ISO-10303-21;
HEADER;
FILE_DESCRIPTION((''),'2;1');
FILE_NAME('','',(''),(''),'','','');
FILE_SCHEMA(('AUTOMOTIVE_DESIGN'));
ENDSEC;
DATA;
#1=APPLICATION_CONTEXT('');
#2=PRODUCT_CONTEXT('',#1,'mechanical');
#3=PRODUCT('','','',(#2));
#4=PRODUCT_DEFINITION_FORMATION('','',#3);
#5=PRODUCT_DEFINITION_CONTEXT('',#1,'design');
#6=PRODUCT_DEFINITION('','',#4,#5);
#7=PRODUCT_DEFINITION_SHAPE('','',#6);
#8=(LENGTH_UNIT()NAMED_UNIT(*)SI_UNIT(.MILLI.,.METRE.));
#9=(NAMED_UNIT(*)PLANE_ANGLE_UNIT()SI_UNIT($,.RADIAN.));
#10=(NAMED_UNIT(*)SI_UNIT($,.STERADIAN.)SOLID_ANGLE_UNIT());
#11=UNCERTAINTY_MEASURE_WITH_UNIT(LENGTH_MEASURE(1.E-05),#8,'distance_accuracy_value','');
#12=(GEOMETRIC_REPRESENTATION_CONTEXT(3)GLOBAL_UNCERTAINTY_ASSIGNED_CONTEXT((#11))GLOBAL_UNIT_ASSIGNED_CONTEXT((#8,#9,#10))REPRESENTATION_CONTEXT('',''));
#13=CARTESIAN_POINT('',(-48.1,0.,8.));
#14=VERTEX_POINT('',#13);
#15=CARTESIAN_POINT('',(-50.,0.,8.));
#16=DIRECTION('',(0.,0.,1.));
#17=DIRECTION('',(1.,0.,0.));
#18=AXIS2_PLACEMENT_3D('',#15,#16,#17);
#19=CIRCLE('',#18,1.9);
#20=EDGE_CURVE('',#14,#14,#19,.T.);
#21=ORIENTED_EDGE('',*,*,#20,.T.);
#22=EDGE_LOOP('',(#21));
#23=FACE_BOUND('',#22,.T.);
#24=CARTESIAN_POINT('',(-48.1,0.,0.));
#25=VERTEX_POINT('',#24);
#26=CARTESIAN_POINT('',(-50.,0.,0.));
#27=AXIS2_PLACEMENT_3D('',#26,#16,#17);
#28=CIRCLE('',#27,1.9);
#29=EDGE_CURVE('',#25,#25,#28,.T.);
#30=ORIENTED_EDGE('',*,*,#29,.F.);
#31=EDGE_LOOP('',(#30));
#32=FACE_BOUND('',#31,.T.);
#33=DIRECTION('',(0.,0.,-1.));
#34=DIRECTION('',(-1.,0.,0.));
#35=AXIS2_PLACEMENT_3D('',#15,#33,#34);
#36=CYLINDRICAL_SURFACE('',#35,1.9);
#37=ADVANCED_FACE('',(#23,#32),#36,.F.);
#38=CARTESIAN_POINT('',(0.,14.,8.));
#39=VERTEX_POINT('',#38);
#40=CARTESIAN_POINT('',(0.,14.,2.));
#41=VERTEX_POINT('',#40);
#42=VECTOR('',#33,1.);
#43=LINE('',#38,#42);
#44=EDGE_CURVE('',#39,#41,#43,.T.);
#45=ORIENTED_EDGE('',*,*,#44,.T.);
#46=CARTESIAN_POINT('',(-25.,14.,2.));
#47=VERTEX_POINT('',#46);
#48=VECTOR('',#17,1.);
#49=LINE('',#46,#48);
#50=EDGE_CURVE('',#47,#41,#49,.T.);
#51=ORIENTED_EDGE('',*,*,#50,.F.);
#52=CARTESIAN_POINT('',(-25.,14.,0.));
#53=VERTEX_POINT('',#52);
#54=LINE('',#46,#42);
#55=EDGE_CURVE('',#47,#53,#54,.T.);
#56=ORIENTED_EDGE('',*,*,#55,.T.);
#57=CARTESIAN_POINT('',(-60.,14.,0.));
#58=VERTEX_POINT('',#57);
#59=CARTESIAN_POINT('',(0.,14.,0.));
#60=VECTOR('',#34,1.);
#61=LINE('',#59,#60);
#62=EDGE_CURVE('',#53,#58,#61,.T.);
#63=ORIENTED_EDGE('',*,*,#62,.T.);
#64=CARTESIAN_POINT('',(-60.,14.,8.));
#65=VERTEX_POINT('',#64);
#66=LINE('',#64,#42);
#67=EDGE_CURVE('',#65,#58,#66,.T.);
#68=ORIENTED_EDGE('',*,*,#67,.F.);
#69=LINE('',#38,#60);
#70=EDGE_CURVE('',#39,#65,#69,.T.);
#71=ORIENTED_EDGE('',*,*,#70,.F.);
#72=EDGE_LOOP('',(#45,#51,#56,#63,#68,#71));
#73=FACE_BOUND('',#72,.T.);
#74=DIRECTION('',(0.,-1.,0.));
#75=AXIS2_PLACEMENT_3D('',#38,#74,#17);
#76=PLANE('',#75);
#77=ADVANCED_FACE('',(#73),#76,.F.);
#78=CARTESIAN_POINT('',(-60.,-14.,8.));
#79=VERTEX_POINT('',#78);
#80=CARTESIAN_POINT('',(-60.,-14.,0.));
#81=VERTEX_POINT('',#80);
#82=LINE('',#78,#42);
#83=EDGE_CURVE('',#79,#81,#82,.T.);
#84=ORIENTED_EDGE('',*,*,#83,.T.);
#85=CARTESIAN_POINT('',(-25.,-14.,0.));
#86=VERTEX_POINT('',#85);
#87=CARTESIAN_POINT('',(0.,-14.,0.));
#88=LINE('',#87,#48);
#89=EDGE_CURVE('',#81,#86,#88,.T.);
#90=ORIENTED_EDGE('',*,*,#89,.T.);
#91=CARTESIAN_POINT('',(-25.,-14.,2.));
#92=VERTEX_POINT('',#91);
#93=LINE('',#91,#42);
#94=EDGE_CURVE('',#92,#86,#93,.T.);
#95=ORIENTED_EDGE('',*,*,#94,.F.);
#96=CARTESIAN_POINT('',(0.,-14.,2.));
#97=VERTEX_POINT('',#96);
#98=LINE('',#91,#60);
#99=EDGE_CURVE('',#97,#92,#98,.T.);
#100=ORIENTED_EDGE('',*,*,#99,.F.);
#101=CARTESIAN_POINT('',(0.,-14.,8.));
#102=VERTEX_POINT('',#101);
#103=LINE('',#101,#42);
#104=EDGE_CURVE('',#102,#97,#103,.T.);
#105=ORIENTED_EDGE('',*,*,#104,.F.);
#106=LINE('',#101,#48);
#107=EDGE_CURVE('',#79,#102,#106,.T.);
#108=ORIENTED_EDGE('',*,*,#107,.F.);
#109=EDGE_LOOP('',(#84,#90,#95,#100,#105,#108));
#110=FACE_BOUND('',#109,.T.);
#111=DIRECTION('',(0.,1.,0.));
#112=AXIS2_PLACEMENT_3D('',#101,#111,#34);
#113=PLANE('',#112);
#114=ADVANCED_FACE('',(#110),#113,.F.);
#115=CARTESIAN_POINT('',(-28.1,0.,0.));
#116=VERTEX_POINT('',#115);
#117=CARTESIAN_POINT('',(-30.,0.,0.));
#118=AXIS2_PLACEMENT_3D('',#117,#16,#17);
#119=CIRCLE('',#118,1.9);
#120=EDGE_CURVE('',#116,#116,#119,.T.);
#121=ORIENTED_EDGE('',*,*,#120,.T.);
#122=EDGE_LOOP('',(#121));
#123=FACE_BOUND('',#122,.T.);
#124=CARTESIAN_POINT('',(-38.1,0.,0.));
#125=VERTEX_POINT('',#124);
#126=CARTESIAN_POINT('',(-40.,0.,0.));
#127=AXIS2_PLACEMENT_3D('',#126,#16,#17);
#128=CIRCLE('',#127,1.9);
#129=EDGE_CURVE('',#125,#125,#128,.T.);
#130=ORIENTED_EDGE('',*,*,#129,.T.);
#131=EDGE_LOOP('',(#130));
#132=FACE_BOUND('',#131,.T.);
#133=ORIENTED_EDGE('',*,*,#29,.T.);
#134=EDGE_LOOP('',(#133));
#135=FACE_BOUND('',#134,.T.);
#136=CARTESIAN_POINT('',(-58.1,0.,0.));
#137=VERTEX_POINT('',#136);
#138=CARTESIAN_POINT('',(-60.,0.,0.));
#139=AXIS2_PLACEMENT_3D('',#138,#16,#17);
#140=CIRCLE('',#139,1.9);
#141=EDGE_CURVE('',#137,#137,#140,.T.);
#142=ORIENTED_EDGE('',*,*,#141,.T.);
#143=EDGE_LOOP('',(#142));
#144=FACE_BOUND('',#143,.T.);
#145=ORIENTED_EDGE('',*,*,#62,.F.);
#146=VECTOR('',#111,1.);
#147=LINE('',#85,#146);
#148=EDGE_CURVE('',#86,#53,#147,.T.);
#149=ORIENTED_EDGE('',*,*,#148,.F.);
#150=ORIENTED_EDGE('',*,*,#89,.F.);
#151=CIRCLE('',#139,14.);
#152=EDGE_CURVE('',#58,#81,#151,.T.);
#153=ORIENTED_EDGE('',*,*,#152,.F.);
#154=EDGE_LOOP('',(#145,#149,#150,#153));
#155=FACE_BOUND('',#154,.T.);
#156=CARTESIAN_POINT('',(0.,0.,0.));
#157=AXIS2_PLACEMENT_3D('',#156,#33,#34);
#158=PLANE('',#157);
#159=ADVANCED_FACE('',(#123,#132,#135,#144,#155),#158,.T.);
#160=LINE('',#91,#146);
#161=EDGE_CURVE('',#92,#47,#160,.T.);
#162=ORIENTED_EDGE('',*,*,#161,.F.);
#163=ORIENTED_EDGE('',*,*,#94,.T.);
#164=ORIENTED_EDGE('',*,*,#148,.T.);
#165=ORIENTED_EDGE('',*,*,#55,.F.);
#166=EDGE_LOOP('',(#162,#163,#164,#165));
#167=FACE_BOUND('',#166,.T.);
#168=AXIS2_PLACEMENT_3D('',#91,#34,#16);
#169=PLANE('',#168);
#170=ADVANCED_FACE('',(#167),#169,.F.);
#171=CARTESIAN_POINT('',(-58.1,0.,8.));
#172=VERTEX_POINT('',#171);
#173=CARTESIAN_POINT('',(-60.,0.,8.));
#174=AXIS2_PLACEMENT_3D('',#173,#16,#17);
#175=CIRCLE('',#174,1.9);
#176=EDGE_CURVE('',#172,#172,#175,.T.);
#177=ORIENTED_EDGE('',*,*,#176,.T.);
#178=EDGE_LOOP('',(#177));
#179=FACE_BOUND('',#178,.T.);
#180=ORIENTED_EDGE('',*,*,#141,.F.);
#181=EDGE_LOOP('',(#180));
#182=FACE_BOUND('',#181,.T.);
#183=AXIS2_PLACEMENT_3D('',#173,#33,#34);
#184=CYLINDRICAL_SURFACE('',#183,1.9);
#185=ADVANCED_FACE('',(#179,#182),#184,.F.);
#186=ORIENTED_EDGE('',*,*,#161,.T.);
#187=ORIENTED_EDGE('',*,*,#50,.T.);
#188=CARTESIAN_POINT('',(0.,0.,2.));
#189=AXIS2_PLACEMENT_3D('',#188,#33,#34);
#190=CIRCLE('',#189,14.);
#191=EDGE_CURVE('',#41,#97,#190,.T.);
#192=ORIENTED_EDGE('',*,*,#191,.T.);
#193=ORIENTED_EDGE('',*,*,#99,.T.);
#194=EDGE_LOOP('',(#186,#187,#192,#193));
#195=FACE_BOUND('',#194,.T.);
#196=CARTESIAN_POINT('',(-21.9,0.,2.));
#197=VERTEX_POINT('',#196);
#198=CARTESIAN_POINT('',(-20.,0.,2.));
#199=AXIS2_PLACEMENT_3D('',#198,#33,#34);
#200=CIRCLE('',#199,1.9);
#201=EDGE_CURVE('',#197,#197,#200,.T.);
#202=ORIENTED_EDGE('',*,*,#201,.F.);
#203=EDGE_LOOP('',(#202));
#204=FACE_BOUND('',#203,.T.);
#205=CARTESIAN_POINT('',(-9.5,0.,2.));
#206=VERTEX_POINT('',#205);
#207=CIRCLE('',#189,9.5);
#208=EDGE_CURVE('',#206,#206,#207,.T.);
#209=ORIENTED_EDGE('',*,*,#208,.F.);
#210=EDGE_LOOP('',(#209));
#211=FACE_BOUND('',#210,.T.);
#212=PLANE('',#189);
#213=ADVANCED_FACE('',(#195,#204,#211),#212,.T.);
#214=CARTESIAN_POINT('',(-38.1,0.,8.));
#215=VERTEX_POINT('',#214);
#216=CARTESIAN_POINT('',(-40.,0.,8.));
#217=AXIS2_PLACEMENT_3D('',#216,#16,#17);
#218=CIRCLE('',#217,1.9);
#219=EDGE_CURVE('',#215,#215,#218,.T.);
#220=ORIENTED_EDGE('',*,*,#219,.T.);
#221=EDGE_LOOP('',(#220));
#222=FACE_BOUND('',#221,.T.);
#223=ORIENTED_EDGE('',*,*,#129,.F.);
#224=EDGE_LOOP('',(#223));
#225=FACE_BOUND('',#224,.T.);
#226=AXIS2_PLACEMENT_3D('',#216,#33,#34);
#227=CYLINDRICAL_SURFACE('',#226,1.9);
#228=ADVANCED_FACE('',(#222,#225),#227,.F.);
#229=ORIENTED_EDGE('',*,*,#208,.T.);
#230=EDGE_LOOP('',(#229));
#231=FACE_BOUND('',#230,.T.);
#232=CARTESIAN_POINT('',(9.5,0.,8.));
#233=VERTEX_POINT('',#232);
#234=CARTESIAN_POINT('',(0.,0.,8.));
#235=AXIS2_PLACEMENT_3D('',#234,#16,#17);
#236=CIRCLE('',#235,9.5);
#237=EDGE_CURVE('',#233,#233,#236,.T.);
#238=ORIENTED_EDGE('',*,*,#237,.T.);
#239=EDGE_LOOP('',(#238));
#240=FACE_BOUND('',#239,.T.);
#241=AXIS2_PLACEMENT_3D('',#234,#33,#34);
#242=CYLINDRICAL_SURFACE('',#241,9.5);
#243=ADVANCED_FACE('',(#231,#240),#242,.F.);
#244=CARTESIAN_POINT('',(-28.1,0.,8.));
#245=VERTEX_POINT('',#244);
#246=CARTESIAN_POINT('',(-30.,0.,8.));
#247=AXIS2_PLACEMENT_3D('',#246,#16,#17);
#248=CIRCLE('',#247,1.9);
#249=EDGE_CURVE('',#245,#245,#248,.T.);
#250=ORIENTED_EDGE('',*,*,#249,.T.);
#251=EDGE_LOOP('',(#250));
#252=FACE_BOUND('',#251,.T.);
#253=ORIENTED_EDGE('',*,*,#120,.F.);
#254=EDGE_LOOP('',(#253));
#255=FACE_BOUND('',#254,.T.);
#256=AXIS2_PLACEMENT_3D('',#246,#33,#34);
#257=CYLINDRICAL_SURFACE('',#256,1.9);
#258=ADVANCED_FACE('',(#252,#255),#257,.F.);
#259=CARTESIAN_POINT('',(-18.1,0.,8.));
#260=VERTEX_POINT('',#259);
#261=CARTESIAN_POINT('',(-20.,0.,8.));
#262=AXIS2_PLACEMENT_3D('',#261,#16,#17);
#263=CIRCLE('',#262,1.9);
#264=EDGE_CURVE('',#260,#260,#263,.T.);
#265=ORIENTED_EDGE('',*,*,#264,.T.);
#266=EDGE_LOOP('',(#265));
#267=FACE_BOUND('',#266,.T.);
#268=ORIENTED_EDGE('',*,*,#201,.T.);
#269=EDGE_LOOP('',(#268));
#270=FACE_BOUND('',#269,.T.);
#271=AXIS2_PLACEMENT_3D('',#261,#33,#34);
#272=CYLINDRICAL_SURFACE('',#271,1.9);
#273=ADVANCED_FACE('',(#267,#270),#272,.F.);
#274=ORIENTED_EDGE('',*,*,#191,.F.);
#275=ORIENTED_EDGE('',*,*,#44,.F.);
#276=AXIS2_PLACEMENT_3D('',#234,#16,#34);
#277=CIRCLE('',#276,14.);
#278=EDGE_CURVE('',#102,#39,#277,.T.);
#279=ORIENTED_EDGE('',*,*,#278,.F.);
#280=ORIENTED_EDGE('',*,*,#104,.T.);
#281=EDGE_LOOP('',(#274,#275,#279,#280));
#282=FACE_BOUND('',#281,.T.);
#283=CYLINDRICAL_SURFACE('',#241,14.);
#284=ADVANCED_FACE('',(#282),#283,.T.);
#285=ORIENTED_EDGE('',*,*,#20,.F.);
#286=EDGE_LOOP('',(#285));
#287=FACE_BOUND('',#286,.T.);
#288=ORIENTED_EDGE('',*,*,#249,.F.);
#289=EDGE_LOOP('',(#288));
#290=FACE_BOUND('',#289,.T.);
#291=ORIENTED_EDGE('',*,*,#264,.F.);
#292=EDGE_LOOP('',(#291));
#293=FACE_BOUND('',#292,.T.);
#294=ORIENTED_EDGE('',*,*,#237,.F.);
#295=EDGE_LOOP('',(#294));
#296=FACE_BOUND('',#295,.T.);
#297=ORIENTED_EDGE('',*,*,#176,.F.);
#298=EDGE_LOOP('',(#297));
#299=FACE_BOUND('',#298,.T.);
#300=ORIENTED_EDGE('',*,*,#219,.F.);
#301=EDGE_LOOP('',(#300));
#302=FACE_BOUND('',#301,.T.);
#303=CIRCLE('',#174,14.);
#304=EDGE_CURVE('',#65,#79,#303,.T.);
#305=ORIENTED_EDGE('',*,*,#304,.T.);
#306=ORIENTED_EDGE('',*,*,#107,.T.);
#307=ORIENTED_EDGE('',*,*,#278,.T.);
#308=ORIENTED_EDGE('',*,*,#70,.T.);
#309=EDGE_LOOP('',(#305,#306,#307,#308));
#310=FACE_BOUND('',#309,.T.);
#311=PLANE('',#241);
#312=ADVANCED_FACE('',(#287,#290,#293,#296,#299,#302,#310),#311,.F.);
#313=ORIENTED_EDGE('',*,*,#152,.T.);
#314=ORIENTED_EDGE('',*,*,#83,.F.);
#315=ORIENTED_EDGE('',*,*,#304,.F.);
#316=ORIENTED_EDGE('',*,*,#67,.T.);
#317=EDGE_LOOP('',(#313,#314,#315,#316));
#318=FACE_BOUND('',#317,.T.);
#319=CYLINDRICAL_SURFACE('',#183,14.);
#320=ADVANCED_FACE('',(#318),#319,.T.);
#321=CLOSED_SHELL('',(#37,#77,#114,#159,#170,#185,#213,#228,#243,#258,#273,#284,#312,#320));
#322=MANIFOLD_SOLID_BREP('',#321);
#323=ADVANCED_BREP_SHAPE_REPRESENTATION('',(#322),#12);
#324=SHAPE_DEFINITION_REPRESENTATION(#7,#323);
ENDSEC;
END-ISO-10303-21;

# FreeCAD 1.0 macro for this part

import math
import FreeCAD as App
import Part
import Sketcher


def add_polygon(sketch, points):
    """Adds a closed chain of lines whose ends are joined by coincident constraints."""
    first, n = sketch.GeometryCount, len(points)
    for a, b in zip(points, points[1:] + points[:1]):
        sketch.addGeometry(Part.LineSegment(App.Vector(*a, 0), App.Vector(*b, 0)), False)
    for i in range(n):
        sketch.addConstraint(Sketcher.Constraint("Coincident", first + i, 2, first + (i + 1) % n, 1))

doc = App.newDocument("Part")
body = doc.addObject("PartDesign::Body", "Body")

sketch1 = body.newObject("Sketcher::SketchObject", "Sketch")
sketch1.AttachmentSupport = (doc.getObject("XY_Plane"), [""])
sketch1.MapMode = "FlatFace"
sketch1.addGeometry(Part.LineSegment(App.Vector(0, 14, 0), App.Vector(-60, 14, 0)), False)
sketch1.addGeometry(Part.ArcOfCircle(Part.Circle(App.Vector(-60, 0, 0), App.Vector(0, 0, 1), 14), math.radians(90), math.radians(270)), False)
sketch1.addGeometry(Part.LineSegment(App.Vector(-60, -14, 0), App.Vector(0, -14, 0)), False)
sketch1.addGeometry(Part.ArcOfCircle(Part.Circle(App.Vector(0, 0, 0), App.Vector(0, 0, 1), 14), math.radians(-90), math.radians(90)), False)
sketch1.addGeometry(Part.Circle(App.Vector(-60, 0, 0), App.Vector(0, 0, 1), 1.9), False)
sketch1.addGeometry(Part.Circle(App.Vector(-50, 0, 0), App.Vector(0, 0, 1), 1.9), False)
sketch1.addGeometry(Part.Circle(App.Vector(-40, 0, 0), App.Vector(0, 0, 1), 1.9), False)
sketch1.addGeometry(Part.Circle(App.Vector(-30, 0, 0), App.Vector(0, 0, 1), 1.9), False)
sketch1.addGeometry(Part.Circle(App.Vector(-20, 0, 0), App.Vector(0, 0, 1), 1.9), False)
sketch1.addGeometry(Part.Circle(App.Vector(0, 0, 0), App.Vector(0, 0, 1), 9.5), False)
sketch1.addConstraint(Sketcher.Constraint("Tangent", 0, 2, 1, 1))
sketch1.addConstraint(Sketcher.Constraint("Tangent", 1, 2, 2, 1))
sketch1.addConstraint(Sketcher.Constraint("Tangent", 2, 2, 3, 1))
sketch1.addConstraint(Sketcher.Constraint("Tangent", 3, 2, 0, 1))
sketch1.addConstraint(Sketcher.Constraint("Horizontal", 0))
sketch1.addConstraint(Sketcher.Constraint("Horizontal", 2))
sketch1.addConstraint(Sketcher.Constraint("Coincident", 3, 3, -1, 1))
sketch1.addConstraint(Sketcher.Constraint("Coincident", 9, 3, -1, 1))
sketch1.addConstraint(Sketcher.Constraint("Coincident", 4, 3, 1, 3))
sketch1.addConstraint(Sketcher.Constraint("Equal", 4, 5))
sketch1.addConstraint(Sketcher.Constraint("Equal", 5, 6))
sketch1.addConstraint(Sketcher.Constraint("Equal", 6, 7))
sketch1.addConstraint(Sketcher.Constraint("Equal", 7, 8))
sketch1.addConstraint(Sketcher.Constraint("PointOnObject", 5, 3, -1))
sketch1.addConstraint(Sketcher.Constraint("PointOnObject", 6, 3, -1))
sketch1.addConstraint(Sketcher.Constraint("PointOnObject", 7, 3, -1))
sketch1.addConstraint(Sketcher.Constraint("PointOnObject", 8, 3, -1))
sketch1.addConstraint(Sketcher.Constraint("Diameter", 9, 19.0))
sketch1.addConstraint(Sketcher.Constraint("Radius", 1, 14.0))
sketch1.addConstraint(Sketcher.Constraint("Diameter", 4, 3.8))
sketch1.addConstraint(Sketcher.Constraint("DistanceX", 0, 2, 0, 1, 60.0))
sketch1.addConstraint(Sketcher.Constraint("DistanceX", 5, 3, -1, 1, 50.0))
sketch1.addConstraint(Sketcher.Constraint("DistanceX", 6, 3, -1, 1, 40.0))
sketch1.addConstraint(Sketcher.Constraint("DistanceX", 7, 3, -1, 1, 30.0))
sketch1.addConstraint(Sketcher.Constraint("DistanceX", 8, 3, -1, 1, 20.0))
pad1 = body.newObject("PartDesign::Pad", "Pad")
pad1.Profile = sketch1
pad1.Length = 8

sketch2 = body.newObject("Sketcher::SketchObject", "Sketch001")
sketch2.AttachmentSupport = (doc.getObject("XY_Plane"), [""])
sketch2.MapMode = "FlatFace"
add_polygon(sketch2, [(14, 14), (14, -14), (-25, -14), (-25, 14)])
sketch2.addConstraint(Sketcher.Constraint("Vertical", 0))
sketch2.addConstraint(Sketcher.Constraint("Horizontal", 1))
sketch2.addConstraint(Sketcher.Constraint("Vertical", 2))
sketch2.addConstraint(Sketcher.Constraint("Horizontal", 3))
sketch2.addConstraint(Sketcher.Constraint("DistanceX", 1, 2, 1, 1, 39.0))
sketch2.addConstraint(Sketcher.Constraint("DistanceY", 0, 2, 0, 1, 28.0))
sketch2.addConstraint(Sketcher.Constraint("DistanceX", -1, 1, 0, 2, 14.0))
sketch2.addConstraint(Sketcher.Constraint("DistanceY", 0, 2, -1, 1, 14.0))
pocket1 = body.newObject("PartDesign::Pocket", "Pocket")
pocket1.Profile = sketch2
pocket1.Length = 2
pocket1.Reversed = True

doc.recompute()
